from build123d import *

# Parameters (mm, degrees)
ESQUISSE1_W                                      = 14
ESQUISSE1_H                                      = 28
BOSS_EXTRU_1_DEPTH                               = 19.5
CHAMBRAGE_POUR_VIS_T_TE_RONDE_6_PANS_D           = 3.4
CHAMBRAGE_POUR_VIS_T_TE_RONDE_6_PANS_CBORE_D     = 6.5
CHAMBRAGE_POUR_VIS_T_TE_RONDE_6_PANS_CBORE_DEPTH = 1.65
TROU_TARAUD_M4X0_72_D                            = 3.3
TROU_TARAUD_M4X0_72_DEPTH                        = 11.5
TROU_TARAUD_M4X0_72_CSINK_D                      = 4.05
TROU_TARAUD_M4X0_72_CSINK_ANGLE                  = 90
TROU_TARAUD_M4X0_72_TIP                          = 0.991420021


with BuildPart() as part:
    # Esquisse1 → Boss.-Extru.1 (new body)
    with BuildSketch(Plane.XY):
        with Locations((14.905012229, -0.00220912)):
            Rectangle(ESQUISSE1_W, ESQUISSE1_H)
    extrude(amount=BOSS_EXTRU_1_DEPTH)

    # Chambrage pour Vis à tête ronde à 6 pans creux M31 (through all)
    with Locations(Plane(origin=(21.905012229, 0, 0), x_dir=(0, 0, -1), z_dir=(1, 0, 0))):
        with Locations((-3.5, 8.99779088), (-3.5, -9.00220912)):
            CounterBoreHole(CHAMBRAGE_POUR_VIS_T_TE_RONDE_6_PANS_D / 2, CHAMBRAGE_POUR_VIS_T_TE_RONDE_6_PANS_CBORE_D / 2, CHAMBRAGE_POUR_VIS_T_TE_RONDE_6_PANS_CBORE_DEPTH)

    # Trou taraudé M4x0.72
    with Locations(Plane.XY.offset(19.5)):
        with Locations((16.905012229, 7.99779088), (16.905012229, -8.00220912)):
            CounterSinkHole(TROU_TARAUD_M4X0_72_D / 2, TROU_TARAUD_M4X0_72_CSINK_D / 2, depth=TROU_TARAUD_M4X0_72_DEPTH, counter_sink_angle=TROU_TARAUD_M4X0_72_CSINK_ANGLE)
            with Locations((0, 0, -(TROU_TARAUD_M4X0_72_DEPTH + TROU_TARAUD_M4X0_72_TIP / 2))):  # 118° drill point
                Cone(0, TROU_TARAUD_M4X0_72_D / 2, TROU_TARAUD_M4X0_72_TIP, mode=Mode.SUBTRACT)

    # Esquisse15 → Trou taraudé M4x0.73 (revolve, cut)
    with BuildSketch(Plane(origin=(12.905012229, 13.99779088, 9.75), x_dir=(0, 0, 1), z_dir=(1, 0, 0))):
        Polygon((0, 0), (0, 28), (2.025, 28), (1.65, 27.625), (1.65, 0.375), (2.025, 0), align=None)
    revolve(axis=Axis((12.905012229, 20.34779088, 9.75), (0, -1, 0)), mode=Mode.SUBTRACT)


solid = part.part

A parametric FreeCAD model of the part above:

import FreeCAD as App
import Part
import Sketcher
from FreeCAD import Vector

doc = App.newDocument("Part")
body = doc.addObject("PartDesign::Body", "Body")

sketch1 = doc.addObject("Sketcher::SketchObject", "Sketch")
body.addObject(sketch1)
sketch1.AttachmentSupport = (doc.XY_Plane, [""])
sketch1.MapMode = "FlatFace"
sketch1.addGeometry(Part.LineSegment(Vector(8, 14, 0), Vector(8, -14, 0)), False)
sketch1.addGeometry(Part.LineSegment(Vector(8, -14, 0), Vector(22, -14, 0)), False)
sketch1.addGeometry(Part.LineSegment(Vector(22, -14, 0), Vector(22, 14, 0)), False)
sketch1.addGeometry(Part.LineSegment(Vector(22, 14, 0), Vector(8, 14, 0)), False)
sketch1.addConstraint(Sketcher.Constraint("Coincident", 0, 2, 1, 1))
sketch1.addConstraint(Sketcher.Constraint("Coincident", 1, 2, 2, 1))
sketch1.addConstraint(Sketcher.Constraint("Coincident", 2, 2, 3, 1))
sketch1.addConstraint(Sketcher.Constraint("Coincident", 3, 2, 0, 1))
sketch1.addConstraint(Sketcher.Constraint("Vertical", 0))
sketch1.addConstraint(Sketcher.Constraint("Horizontal", 1))
sketch1.addConstraint(Sketcher.Constraint("Vertical", 2))
sketch1.addConstraint(Sketcher.Constraint("Horizontal", 3))
sketch1.addConstraint(Sketcher.Constraint("DistanceX", 1, 1, 1, 2, 14.0))
sketch1.addConstraint(Sketcher.Constraint("DistanceY", 0, 2, 0, 1, 28.0))
sketch1.addConstraint(Sketcher.Constraint("DistanceY", 0, 2, -1, 1, 14.002209))
sketch1.addConstraint(Sketcher.Constraint("DistanceX", -1, 1, 0, 2, 7.905012))
pad1 = doc.addObject("PartDesign::Pad", "Pad")
body.addObject(pad1)
pad1.Profile = sketch1
pad1.Length = 19.5

sketch2 = doc.addObject("Sketcher::SketchObject", "Sketch001")
body.addObject(sketch2)
sketch2.AttachmentSupport = (doc.YZ_Plane, [""])
sketch2.MapMode = "FlatFace"
sketch2.AttachmentOffset = App.Placement(Vector(0, 0, 21.905012), App.Rotation())
sketch2.addGeometry(Part.Circle(Vector(9, 3.5, 0), Vector(0, 0, 1), 1.7), False)
sketch2.addGeometry(Part.Circle(Vector(-9, 3.5, 0), Vector(0, 0, 1), 1.7), False)
sketch2.addConstraint(Sketcher.Constraint("Equal", 0, 1))
sketch2.addConstraint(Sketcher.Constraint("Horizontal", 0, 3, 1, 3))
sketch2.addConstraint(Sketcher.Constraint("Diameter", 0, 3.4))
sketch2.addConstraint(Sketcher.Constraint("DistanceX", 1, 3, 0, 3, 18.0))
sketch2.addConstraint(Sketcher.Constraint("DistanceY", -1, 1, 0, 3, 3.5))
sketch2.addConstraint(Sketcher.Constraint("DistanceX", -1, 1, 0, 3, 8.997791))
doc.recompute()
hole = doc.addObject("PartDesign::Hole", "Hole")
body.addObject(hole)
hole.Profile = sketch2
hole.ThreadType = "None"
hole.Diameter = 3.4
hole.DepthType = "ThroughAll"
hole.HoleCutType = "Counterbore"
hole.HoleCutDiameter = 6.5
hole.HoleCutDepth = 1.65

sketch3 = doc.addObject("Sketcher::SketchObject", "Sketch002")
body.addObject(sketch3)
sketch3.AttachmentSupport = (doc.XY_Plane, [""])
sketch3.MapMode = "FlatFace"
sketch3.AttachmentOffset = App.Placement(Vector(0, 0, 19.5), App.Rotation())
sketch3.addGeometry(Part.Circle(Vector(16.9, 8, 0), Vector(0, 0, 1), 1.6), False)
sketch3.addGeometry(Part.Circle(Vector(16.9, -8, 0), Vector(0, 0, 1), 1.6), False)
sketch3.addConstraint(Sketcher.Constraint("Equal", 0, 1))
sketch3.addConstraint(Sketcher.Constraint("Vertical", 0, 3, 1, 3))
sketch3.addConstraint(Sketcher.Constraint("Diameter", 0, 3.3))
sketch3.addConstraint(Sketcher.Constraint("DistanceY", 1, 3, 0, 3, 16.0))
sketch3.addConstraint(Sketcher.Constraint("DistanceY", -1, 1, 0, 3, 7.997791))
sketch3.addConstraint(Sketcher.Constraint("DistanceX", -1, 1, 0, 3, 16.905012))
doc.recompute()
hole2 = doc.addObject("PartDesign::Hole", "Hole001")
body.addObject(hole2)
hole2.Profile = sketch3
hole2.ThreadType = "None"
hole2.Diameter = 3.3
hole2.DepthType = "Dimension"
hole2.Depth = 11.5
hole2.DrillPoint = "Angled"
hole2.DrillPointAngle = 118
hole2.HoleCutType = "Countersink"
hole2.HoleCutDiameter = 4.05
hole2.HoleCutCountersinkAngle = 90

sketch4 = doc.addObject("Sketcher::SketchObject", "Sketch003")
body.addObject(sketch4)
sketch4.AttachmentSupport = (doc.YZ_Plane, [""])
sketch4.MapMode = "FlatFace"
sketch4.AttachmentOffset = App.Placement(Vector(0, 0, 12.905012), App.Rotation())
sketch4.addGeometry(Part.LineSegment(Vector(-14, 9.8, 0), Vector(14, 9.8, 0)), False)
sketch4.addGeometry(Part.LineSegment(Vector(14, 9.8, 0), Vector(14, 11.8, 0)), False)
sketch4.addGeometry(Part.LineSegment(Vector(14, 11.8, 0), Vector(13.6, 11.4, 0)), False)
sketch4.addGeometry(Part.LineSegment(Vector(13.6, 11.4, 0), Vector(-13.6, 11.4, 0)), False)
sketch4.addGeometry(Part.LineSegment(Vector(-13.6, 11.4, 0), Vector(-14, 11.8, 0)), False)
sketch4.addGeometry(Part.LineSegment(Vector(-14, 11.8, 0), Vector(-14, 9.8, 0)), False)
sketch4.addGeometry(Part.LineSegment(Vector(14, 9.8, 0), Vector(-14, 9.8, 0)), True)
sketch4.addConstraint(Sketcher.Constraint("Coincident", 0, 2, 1, 1))
sketch4.addConstraint(Sketcher.Constraint("Coincident", 1, 2, 2, 1))
sketch4.addConstraint(Sketcher.Constraint("Coincident", 2, 2, 3, 1))
sketch4.addConstraint(Sketcher.Constraint("Coincident", 3, 2, 4, 1))
sketch4.addConstraint(Sketcher.Constraint("Coincident", 4, 2, 5, 1))
sketch4.addConstraint(Sketcher.Constraint("Coincident", 5, 2, 0, 1))
sketch4.addConstraint(Sketcher.Constraint("Horizontal", 0))
sketch4.addConstraint(Sketcher.Constraint("Vertical", 1))
sketch4.addConstraint(Sketcher.Constraint("Horizontal", 3))
sketch4.addConstraint(Sketcher.Constraint("Vertical", 5))
sketch4.addConstraint(Sketcher.Constraint("Horizontal", 6))
sketch4.addConstraint(Sketcher.Constraint("Coincident", 6, 1, 0, 2))
sketch4.addConstraint(Sketcher.Constraint("Perpendicular", 2, 4))
sketch4.addConstraint(Sketcher.Constraint("Horizontal", 1, 2, 4, 2))
sketch4.addConstraint(Sketcher.Constraint("Vertical", 4, 2, 6, 2))
sketch4.addConstraint(Sketcher.Constraint("Equal", 2, 4))
sketch4.addConstraint(Sketcher.Constraint("DistanceX", 0, 1, 0, 2, 28.0))
sketch4.addConstraint(Sketcher.Constraint("DistanceX", 3, 2, 3, 1, 27.25))
sketch4.addConstraint(Sketcher.Constraint("DistanceY", -1, 1, 2, 2, 11.4))
sketch4.addConstraint(Sketcher.Constraint("DistanceY", 1, 1, 1, 2, 2.025))
sketch4.addConstraint(Sketcher.Constraint("DistanceX", -1, 1, 0, 2, 13.997791))
groove = doc.addObject("PartDesign::Groove", "Groove")
body.addObject(groove)
groove.Profile = sketch4
groove.ReferenceAxis = (sketch4, ["Axis0"])
groove.Angle = 360

doc.recompute()
